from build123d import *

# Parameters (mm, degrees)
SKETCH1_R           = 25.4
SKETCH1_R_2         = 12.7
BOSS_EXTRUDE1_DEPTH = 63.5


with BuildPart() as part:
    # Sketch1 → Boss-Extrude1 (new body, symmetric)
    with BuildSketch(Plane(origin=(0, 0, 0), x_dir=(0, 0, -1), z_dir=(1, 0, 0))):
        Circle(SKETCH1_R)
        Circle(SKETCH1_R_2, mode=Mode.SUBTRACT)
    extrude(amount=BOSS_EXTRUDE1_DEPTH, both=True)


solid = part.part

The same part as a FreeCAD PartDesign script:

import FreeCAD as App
import Part
import Sketcher
from FreeCAD import Vector
Q = App.Units.Quantity

doc = App.newDocument("Part")
body = doc.addObject("PartDesign::Body", "Body")

# Sketch on YZ plane
sketch1 = doc.addObject("Sketcher::SketchObject", "Sketch")
body.addObject(sketch1)
sketch1.AttachmentSupport = (doc.YZ_Plane, [""])
sketch1.MapMode = "FlatFace"
sketch1.addGeometry(Part.Circle(Vector(0, 0, 0), Vector(0, 0, 1), 25.4), False)
sketch1.addGeometry(Part.Circle(Vector(0, 0, 0), Vector(0, 0, 1), 12.7), False)
sketch1.addConstraint(Sketcher.Constraint("Coincident", 0, 3, -1, 1))
sketch1.addConstraint(Sketcher.Constraint("Coincident", 1, 3, -1, 1))
sketch1.addConstraint(Sketcher.Constraint("Diameter", 0, Q("2 in")))
sketch1.addConstraint(Sketcher.Constraint("Diameter", 1, Q("1 in")))
pad1 = doc.addObject("PartDesign::Pad", "Pad")
body.addObject(pad1)
pad1.Profile = sketch1
pad1.Length = Q("5 in")
pad1.Midplane = True

doc.recompute()
